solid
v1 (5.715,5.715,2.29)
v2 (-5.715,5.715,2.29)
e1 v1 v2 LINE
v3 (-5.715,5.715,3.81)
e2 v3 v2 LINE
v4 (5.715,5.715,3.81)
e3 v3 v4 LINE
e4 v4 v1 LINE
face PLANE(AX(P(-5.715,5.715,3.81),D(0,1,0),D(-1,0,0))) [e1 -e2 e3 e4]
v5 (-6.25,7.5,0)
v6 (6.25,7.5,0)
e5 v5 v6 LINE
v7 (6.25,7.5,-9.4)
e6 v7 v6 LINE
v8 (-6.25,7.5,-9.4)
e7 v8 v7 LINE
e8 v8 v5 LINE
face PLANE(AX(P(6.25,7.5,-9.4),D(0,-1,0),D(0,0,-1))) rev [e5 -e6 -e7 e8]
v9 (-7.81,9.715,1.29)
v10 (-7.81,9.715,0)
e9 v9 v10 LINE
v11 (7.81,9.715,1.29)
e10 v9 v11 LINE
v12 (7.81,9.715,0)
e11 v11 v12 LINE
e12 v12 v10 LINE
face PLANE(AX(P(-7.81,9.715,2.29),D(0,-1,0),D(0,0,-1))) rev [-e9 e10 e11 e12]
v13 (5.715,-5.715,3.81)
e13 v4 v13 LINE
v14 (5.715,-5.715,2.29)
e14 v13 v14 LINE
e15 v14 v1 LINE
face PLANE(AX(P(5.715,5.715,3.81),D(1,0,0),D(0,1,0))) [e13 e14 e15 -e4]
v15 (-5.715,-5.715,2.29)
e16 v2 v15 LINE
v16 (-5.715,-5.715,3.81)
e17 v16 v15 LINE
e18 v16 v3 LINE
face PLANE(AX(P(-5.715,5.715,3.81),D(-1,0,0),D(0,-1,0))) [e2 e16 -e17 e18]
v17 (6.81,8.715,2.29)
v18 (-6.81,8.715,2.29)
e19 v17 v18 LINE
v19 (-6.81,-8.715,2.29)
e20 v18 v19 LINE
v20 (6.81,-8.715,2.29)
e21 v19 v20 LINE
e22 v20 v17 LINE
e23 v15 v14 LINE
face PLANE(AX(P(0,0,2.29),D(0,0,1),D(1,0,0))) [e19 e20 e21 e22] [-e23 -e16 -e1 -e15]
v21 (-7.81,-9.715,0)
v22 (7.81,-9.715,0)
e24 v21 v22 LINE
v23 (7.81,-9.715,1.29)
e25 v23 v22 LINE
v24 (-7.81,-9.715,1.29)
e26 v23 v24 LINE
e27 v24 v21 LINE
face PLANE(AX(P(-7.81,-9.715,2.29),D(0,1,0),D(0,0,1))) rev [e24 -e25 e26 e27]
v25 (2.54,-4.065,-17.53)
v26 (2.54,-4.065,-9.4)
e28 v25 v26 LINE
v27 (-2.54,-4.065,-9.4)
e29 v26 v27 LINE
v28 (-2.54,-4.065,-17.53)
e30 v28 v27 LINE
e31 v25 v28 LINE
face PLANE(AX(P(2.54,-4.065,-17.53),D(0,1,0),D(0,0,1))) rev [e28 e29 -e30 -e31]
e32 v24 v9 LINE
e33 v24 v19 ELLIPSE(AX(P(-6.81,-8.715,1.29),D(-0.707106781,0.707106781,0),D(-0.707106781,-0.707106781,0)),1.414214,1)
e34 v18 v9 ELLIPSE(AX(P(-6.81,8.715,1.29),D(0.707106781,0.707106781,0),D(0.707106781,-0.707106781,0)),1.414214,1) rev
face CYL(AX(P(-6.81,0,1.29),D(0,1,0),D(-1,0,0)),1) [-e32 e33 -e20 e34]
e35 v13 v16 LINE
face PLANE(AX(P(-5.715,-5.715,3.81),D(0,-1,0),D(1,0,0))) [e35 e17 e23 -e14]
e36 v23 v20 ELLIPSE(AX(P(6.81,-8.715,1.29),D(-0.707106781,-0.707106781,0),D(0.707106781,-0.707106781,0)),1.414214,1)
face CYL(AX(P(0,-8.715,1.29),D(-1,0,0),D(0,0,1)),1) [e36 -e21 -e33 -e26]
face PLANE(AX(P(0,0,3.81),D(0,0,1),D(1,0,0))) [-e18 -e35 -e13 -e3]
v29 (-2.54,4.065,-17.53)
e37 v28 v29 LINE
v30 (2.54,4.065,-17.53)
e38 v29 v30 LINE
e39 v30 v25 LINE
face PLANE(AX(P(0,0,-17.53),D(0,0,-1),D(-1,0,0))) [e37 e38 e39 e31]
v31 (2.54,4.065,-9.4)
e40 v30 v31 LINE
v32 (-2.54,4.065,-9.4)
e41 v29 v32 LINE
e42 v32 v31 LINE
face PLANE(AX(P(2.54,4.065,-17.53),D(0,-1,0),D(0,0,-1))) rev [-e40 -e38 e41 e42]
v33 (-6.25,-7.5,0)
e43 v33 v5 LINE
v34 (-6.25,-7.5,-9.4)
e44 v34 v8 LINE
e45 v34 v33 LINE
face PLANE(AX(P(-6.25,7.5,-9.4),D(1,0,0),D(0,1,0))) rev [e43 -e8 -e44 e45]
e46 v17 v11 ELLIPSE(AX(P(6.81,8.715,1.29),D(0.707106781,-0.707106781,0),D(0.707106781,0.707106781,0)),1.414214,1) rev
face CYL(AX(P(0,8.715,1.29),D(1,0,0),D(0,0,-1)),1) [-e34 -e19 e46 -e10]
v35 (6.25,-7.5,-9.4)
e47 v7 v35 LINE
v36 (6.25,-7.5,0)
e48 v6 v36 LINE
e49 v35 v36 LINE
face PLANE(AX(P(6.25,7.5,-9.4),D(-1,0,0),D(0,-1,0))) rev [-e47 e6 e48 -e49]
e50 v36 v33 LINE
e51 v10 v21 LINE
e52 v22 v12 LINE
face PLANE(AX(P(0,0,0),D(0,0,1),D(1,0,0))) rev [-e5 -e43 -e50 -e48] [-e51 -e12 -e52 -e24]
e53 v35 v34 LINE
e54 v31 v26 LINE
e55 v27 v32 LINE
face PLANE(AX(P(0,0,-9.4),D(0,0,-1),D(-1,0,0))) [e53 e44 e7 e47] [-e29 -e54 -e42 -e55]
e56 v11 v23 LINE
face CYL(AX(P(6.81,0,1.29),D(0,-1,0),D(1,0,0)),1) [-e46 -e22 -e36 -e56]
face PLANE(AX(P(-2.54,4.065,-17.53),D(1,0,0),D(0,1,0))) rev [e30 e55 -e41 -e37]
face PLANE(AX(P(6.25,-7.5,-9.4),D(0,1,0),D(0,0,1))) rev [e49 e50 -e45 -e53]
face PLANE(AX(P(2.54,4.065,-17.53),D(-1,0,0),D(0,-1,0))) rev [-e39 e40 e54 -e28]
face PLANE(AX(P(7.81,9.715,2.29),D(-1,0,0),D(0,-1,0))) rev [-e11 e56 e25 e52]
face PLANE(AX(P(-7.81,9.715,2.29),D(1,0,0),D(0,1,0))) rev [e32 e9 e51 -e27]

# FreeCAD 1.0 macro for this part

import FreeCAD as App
import Part
import Sketcher


def edges_at(feature, points):
    """Names of the edges that pass closest to the given points."""
    edges = feature.Shape.Edges
    near = lambda p: min(range(len(edges)), key=lambda i: edges[i].distToShape(Part.Vertex(*p))[0])
    return sorted({f"Edge{near(p) + 1}" for p in points})

doc = App.newDocument("Part")
body = doc.addObject("PartDesign::Body", "Body")

# Sketch on XY plane
sketch1 = doc.addObject("Sketcher::SketchObject", "Sketch")
body.addObject(sketch1)
sketch1.AttachmentSupport = (doc.XY_Plane, [""])
sketch1.MapMode = "FlatFace"
sketch1.addGeometry([
    Part.LineSegment(App.Vector(-8, 10, 0), App.Vector(-8, -10, 0)),
    Part.LineSegment(App.Vector(-8, -10, 0), App.Vector(8, -10, 0)),
    Part.LineSegment(App.Vector(8, -10, 0), App.Vector(8, 10, 0)),
    Part.LineSegment(App.Vector(8, 10, 0), App.Vector(-8, 10, 0)),
], False)
sketch1.addConstraint([
    Sketcher.Constraint("Coincident", 0, 2, 1, 1),
    Sketcher.Constraint("Coincident", 1, 2, 2, 1),
    Sketcher.Constraint("Coincident", 2, 2, 3, 1),
    Sketcher.Constraint("Coincident", 3, 2, 0, 1),
    Sketcher.Constraint("Vertical", 0),
    Sketcher.Constraint("Horizontal", 1),
    Sketcher.Constraint("Vertical", 2),
    Sketcher.Constraint("Horizontal", 3),
    Sketcher.Constraint("Symmetric", 0, 2, 2, 2, -1, 1),
    Sketcher.Constraint("DistanceX", 1, 1, 1, 2, 15.62),
    Sketcher.Constraint("DistanceY", 0, 2, 0, 1, 19.43),
])
pad1 = doc.addObject("PartDesign::Pad", "Pad")
body.addObject(pad1)
pad1.Profile = sketch1
pad1.Length = 2.29

# Sketch on XY plane
sketch2 = doc.addObject("Sketcher::SketchObject", "Sketch001")
body.addObject(sketch2)
sketch2.AttachmentSupport = (doc.XY_Plane, [""])
sketch2.MapMode = "FlatFace"
sketch2.addGeometry([
    Part.LineSegment(App.Vector(6, 6, 0), App.Vector(6, -6, 0)),
    Part.LineSegment(App.Vector(6, -6, 0), App.Vector(-6, -6, 0)),
    Part.LineSegment(App.Vector(-6, -6, 0), App.Vector(-6, 6, 0)),
    Part.LineSegment(App.Vector(-6, 6, 0), App.Vector(6, 6, 0)),
], False)
sketch2.addConstraint([
    Sketcher.Constraint("Coincident", 0, 2, 1, 1),
    Sketcher.Constraint("Coincident", 1, 2, 2, 1),
    Sketcher.Constraint("Coincident", 2, 2, 3, 1),
    Sketcher.Constraint("Coincident", 3, 2, 0, 1),
    Sketcher.Constraint("Vertical", 0),
    Sketcher.Constraint("Horizontal", 1),
    Sketcher.Constraint("Vertical", 2),
    Sketcher.Constraint("Horizontal", 3),
    Sketcher.Constraint("Symmetric", 0, 2, 2, 2, -1, 1),
    Sketcher.Constraint("Equal", 3, 0),
    Sketcher.Constraint("DistanceX", 1, 2, 1, 1, 11.43),
])
pad2 = doc.addObject("PartDesign::Pad", "Pad001")
body.addObject(pad2)
pad2.Profile = sketch2
pad2.Length = 3.81
doc.recompute()

fillet = doc.addObject("PartDesign::Fillet", "Fillet")
body.addObject(fillet)
fillet.Base = (pad2, edges_at(pad2, [
    (-7.81, 0, 2.29),
    (0, -9.715, 2.29),
    (7.81, 0, 2.29),
    (0, 9.715, 2.29),
]))
fillet.Radius = 1

# Sketch on XY plane
sketch3 = doc.addObject("Sketcher::SketchObject", "Sketch002")
body.addObject(sketch3)
sketch3.AttachmentSupport = (doc.XY_Plane, [""])
sketch3.MapMode = "FlatFace"
sketch3.addGeometry([
    Part.LineSegment(App.Vector(6, 8, 0), App.Vector(6, -8, 0)),
    Part.LineSegment(App.Vector(6, -8, 0), App.Vector(-6, -8, 0)),
    Part.LineSegment(App.Vector(-6, -8, 0), App.Vector(-6, 8, 0)),
    Part.LineSegment(App.Vector(-6, 8, 0), App.Vector(6, 8, 0)),
], False)
sketch3.addConstraint([
    Sketcher.Constraint("Coincident", 0, 2, 1, 1),
    Sketcher.Constraint("Coincident", 1, 2, 2, 1),
    Sketcher.Constraint("Coincident", 2, 2, 3, 1),
    Sketcher.Constraint("Coincident", 3, 2, 0, 1),
    Sketcher.Constraint("Vertical", 0),
    Sketcher.Constraint("Horizontal", 1),
    Sketcher.Constraint("Vertical", 2),
    Sketcher.Constraint("Horizontal", 3),
    Sketcher.Constraint("Symmetric", 0, 2, 2, 2, -1, 1),
    Sketcher.Constraint("DistanceY", 0, 2, 0, 1, 15.0),
    Sketcher.Constraint("DistanceX", 1, 2, 1, 1, 12.5),
])
pad3 = doc.addObject("PartDesign::Pad", "Pad002")
body.addObject(pad3)
pad3.Profile = sketch3
pad3.Length = 9.4
pad3.Reversed = True

# Sketch on XY plane
sketch4 = doc.addObject("Sketcher::SketchObject", "Sketch003")
body.addObject(sketch4)
sketch4.AttachmentSupport = (doc.XY_Plane, [""])
sketch4.MapMode = "FlatFace"
sketch4.AttachmentOffset = App.Placement(App.Vector(0, 0, -9.4), App.Rotation())
sketch4.addGeometry([
    Part.LineSegment(App.Vector(3, 4, 0), App.Vector(3, -4, 0)),
    Part.LineSegment(App.Vector(3, -4, 0), App.Vector(-3, -4, 0)),
    Part.LineSegment(App.Vector(-3, -4, 0), App.Vector(-3, 4, 0)),
    Part.LineSegment(App.Vector(-3, 4, 0), App.Vector(3, 4, 0)),
], False)
sketch4.addConstraint([
    Sketcher.Constraint("Coincident", 0, 2, 1, 1),
    Sketcher.Constraint("Coincident", 1, 2, 2, 1),
    Sketcher.Constraint("Coincident", 2, 2, 3, 1),
    Sketcher.Constraint("Coincident", 3, 2, 0, 1),
    Sketcher.Constraint("Vertical", 0),
    Sketcher.Constraint("Horizontal", 1),
    Sketcher.Constraint("Vertical", 2),
    Sketcher.Constraint("Horizontal", 3),
    Sketcher.Constraint("Symmetric", 0, 2, 2, 2, -1, 1),
    Sketcher.Constraint("DistanceX", 1, 2, 1, 1, 5.08),
    Sketcher.Constraint("DistanceY", 0, 2, 0, 1, 8.13),
])
pad4 = doc.addObject("PartDesign::Pad", "Pad003")
body.addObject(pad4)
pad4.Profile = sketch4
pad4.Length = 8.13
pad4.Reversed = True

doc.recompute()
